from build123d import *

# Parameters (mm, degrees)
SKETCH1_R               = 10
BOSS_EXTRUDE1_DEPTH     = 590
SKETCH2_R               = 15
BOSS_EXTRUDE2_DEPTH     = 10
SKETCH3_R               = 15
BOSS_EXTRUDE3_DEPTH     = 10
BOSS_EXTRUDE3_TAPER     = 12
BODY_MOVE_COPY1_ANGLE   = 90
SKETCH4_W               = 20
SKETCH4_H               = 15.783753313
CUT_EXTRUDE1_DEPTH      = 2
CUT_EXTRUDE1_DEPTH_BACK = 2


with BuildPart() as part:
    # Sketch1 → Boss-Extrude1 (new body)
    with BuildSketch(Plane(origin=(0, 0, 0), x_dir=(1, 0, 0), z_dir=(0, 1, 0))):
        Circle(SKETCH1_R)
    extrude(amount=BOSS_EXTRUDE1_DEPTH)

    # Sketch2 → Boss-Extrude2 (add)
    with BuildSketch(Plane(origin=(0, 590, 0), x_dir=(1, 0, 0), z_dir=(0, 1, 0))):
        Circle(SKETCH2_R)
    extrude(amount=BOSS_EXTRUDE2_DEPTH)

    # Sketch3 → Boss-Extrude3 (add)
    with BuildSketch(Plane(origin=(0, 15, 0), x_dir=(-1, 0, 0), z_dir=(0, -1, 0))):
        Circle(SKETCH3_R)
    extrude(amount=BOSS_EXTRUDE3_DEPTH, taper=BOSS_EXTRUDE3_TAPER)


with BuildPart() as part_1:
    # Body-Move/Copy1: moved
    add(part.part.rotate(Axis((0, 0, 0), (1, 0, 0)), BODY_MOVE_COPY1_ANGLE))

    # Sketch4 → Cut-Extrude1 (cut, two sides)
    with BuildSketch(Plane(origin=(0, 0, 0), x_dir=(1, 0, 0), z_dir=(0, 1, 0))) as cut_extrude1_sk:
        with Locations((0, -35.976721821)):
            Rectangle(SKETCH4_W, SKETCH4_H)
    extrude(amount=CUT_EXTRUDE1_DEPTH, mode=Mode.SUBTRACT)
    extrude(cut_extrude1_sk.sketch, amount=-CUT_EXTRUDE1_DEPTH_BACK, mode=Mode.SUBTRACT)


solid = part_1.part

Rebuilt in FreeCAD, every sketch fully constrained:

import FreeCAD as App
import Part
import Sketcher
from FreeCAD import Vector

doc = App.newDocument("Part")
body = doc.addObject("PartDesign::Body", "Body")

sketch1 = body.newObject("Sketcher::SketchObject", "Sketch")
sketch1.AttachmentSupport = (doc.getObject("XZ_Plane"), [""])
sketch1.MapMode = "FlatFace"
sketch1.addGeometry(Part.Circle(Vector(0, 0, 0), Vector(0, 0, 1), 10), False)
sketch1.addConstraint(Sketcher.Constraint("Coincident", 0, 3, -1, 1))
sketch1.addConstraint(Sketcher.Constraint("Diameter", 0, 20.0))
pad1 = body.newObject("PartDesign::Pad", "Pad")
pad1.Profile = sketch1
pad1.Length = 590
pad1.Reversed = True

sketch2 = body.newObject("Sketcher::SketchObject", "Sketch001")
sketch2.AttachmentSupport = (doc.getObject("XZ_Plane"), [""])
sketch2.MapMode = "FlatFace"
sketch2.AttachmentOffset = App.Placement(Vector(0, 0, -590), App.Rotation())
sketch2.addGeometry(Part.Circle(Vector(0, 0, 0), Vector(0, 0, 1), 15), False)
sketch2.addConstraint(Sketcher.Constraint("Coincident", 0, 3, -1, 1))
sketch2.addConstraint(Sketcher.Constraint("Diameter", 0, 30.0))
pad2 = body.newObject("PartDesign::Pad", "Pad001")
pad2.Profile = sketch2
pad2.Length = 10
pad2.Reversed = True

sketch3 = body.newObject("Sketcher::SketchObject", "Sketch002")
sketch3.AttachmentSupport = (doc.getObject("XZ_Plane"), [""])
sketch3.MapMode = "FlatFace"
sketch3.AttachmentOffset = App.Placement(Vector(0, 0, -15), App.Rotation())
sketch3.addGeometry(Part.Circle(Vector(0, 0, 0), Vector(0, 0, 1), 15), False)
sketch3.addConstraint(Sketcher.Constraint("Coincident", 0, 3, -1, 1))
sketch3.addConstraint(Sketcher.Constraint("Diameter", 0, 30.0))
pad3 = body.newObject("PartDesign::Pad", "Pad002")
pad3.Profile = sketch3
pad3.Length = 10
pad3.TaperAngle = -12
body2 = doc.addObject("PartDesign::Body", "Body001")
doc.recompute()

body.Placement = App.Placement(Vector(0, 0, 0), App.Rotation(Vector(1, 0, 0), 90))
boolean = body2.newObject("PartDesign::Boolean", "Boolean")
boolean.Type = "Fuse"
boolean.addObjects([body])

sketch4 = body2.newObject("Sketcher::SketchObject", "Sketch003")
sketch4.AttachmentSupport = (doc.getObject("XZ_Plane001"), [""])
sketch4.MapMode = "FlatFace"
sketch4.addGeometry(Part.LineSegment(Vector(-10, 28, 0), Vector(-10, 44, 0)), False)
sketch4.addGeometry(Part.LineSegment(Vector(-10, 44, 0), Vector(10, 44, 0)), False)
sketch4.addGeometry(Part.LineSegment(Vector(10, 44, 0), Vector(10, 28, 0)), False)
sketch4.addGeometry(Part.LineSegment(Vector(10, 28, 0), Vector(-10, 28, 0)), False)
sketch4.addConstraint(Sketcher.Constraint("Coincident", 0, 2, 1, 1))
sketch4.addConstraint(Sketcher.Constraint("Coincident", 1, 2, 2, 1))
sketch4.addConstraint(Sketcher.Constraint("Coincident", 2, 2, 3, 1))
sketch4.addConstraint(Sketcher.Constraint("Coincident", 3, 2, 0, 1))
sketch4.addConstraint(Sketcher.Constraint("Vertical", 0))
sketch4.addConstraint(Sketcher.Constraint("Horizontal", 1))
sketch4.addConstraint(Sketcher.Constraint("Vertical", 2))
sketch4.addConstraint(Sketcher.Constraint("Horizontal", 3))
sketch4.addConstraint(Sketcher.Constraint("DistanceX", 1, 1, 1, 2, 20.0))
sketch4.addConstraint(Sketcher.Constraint("DistanceX", 0, 2, -1, 1, 10.0))
sketch4.addConstraint(Sketcher.Constraint("DistanceY", -1, 1, 0, 2, 43.868598))
sketch4.addConstraint(Sketcher.Constraint("DistanceY", 0, 1, 0, 2, 15.783753))
pocket1 = body2.newObject("PartDesign::Pocket", "Pocket")
pocket1.Profile = sketch4
pocket1.Type = "TwoLengths"
pocket1.Length = 2
pocket1.Length2 = 2

doc.recompute()
